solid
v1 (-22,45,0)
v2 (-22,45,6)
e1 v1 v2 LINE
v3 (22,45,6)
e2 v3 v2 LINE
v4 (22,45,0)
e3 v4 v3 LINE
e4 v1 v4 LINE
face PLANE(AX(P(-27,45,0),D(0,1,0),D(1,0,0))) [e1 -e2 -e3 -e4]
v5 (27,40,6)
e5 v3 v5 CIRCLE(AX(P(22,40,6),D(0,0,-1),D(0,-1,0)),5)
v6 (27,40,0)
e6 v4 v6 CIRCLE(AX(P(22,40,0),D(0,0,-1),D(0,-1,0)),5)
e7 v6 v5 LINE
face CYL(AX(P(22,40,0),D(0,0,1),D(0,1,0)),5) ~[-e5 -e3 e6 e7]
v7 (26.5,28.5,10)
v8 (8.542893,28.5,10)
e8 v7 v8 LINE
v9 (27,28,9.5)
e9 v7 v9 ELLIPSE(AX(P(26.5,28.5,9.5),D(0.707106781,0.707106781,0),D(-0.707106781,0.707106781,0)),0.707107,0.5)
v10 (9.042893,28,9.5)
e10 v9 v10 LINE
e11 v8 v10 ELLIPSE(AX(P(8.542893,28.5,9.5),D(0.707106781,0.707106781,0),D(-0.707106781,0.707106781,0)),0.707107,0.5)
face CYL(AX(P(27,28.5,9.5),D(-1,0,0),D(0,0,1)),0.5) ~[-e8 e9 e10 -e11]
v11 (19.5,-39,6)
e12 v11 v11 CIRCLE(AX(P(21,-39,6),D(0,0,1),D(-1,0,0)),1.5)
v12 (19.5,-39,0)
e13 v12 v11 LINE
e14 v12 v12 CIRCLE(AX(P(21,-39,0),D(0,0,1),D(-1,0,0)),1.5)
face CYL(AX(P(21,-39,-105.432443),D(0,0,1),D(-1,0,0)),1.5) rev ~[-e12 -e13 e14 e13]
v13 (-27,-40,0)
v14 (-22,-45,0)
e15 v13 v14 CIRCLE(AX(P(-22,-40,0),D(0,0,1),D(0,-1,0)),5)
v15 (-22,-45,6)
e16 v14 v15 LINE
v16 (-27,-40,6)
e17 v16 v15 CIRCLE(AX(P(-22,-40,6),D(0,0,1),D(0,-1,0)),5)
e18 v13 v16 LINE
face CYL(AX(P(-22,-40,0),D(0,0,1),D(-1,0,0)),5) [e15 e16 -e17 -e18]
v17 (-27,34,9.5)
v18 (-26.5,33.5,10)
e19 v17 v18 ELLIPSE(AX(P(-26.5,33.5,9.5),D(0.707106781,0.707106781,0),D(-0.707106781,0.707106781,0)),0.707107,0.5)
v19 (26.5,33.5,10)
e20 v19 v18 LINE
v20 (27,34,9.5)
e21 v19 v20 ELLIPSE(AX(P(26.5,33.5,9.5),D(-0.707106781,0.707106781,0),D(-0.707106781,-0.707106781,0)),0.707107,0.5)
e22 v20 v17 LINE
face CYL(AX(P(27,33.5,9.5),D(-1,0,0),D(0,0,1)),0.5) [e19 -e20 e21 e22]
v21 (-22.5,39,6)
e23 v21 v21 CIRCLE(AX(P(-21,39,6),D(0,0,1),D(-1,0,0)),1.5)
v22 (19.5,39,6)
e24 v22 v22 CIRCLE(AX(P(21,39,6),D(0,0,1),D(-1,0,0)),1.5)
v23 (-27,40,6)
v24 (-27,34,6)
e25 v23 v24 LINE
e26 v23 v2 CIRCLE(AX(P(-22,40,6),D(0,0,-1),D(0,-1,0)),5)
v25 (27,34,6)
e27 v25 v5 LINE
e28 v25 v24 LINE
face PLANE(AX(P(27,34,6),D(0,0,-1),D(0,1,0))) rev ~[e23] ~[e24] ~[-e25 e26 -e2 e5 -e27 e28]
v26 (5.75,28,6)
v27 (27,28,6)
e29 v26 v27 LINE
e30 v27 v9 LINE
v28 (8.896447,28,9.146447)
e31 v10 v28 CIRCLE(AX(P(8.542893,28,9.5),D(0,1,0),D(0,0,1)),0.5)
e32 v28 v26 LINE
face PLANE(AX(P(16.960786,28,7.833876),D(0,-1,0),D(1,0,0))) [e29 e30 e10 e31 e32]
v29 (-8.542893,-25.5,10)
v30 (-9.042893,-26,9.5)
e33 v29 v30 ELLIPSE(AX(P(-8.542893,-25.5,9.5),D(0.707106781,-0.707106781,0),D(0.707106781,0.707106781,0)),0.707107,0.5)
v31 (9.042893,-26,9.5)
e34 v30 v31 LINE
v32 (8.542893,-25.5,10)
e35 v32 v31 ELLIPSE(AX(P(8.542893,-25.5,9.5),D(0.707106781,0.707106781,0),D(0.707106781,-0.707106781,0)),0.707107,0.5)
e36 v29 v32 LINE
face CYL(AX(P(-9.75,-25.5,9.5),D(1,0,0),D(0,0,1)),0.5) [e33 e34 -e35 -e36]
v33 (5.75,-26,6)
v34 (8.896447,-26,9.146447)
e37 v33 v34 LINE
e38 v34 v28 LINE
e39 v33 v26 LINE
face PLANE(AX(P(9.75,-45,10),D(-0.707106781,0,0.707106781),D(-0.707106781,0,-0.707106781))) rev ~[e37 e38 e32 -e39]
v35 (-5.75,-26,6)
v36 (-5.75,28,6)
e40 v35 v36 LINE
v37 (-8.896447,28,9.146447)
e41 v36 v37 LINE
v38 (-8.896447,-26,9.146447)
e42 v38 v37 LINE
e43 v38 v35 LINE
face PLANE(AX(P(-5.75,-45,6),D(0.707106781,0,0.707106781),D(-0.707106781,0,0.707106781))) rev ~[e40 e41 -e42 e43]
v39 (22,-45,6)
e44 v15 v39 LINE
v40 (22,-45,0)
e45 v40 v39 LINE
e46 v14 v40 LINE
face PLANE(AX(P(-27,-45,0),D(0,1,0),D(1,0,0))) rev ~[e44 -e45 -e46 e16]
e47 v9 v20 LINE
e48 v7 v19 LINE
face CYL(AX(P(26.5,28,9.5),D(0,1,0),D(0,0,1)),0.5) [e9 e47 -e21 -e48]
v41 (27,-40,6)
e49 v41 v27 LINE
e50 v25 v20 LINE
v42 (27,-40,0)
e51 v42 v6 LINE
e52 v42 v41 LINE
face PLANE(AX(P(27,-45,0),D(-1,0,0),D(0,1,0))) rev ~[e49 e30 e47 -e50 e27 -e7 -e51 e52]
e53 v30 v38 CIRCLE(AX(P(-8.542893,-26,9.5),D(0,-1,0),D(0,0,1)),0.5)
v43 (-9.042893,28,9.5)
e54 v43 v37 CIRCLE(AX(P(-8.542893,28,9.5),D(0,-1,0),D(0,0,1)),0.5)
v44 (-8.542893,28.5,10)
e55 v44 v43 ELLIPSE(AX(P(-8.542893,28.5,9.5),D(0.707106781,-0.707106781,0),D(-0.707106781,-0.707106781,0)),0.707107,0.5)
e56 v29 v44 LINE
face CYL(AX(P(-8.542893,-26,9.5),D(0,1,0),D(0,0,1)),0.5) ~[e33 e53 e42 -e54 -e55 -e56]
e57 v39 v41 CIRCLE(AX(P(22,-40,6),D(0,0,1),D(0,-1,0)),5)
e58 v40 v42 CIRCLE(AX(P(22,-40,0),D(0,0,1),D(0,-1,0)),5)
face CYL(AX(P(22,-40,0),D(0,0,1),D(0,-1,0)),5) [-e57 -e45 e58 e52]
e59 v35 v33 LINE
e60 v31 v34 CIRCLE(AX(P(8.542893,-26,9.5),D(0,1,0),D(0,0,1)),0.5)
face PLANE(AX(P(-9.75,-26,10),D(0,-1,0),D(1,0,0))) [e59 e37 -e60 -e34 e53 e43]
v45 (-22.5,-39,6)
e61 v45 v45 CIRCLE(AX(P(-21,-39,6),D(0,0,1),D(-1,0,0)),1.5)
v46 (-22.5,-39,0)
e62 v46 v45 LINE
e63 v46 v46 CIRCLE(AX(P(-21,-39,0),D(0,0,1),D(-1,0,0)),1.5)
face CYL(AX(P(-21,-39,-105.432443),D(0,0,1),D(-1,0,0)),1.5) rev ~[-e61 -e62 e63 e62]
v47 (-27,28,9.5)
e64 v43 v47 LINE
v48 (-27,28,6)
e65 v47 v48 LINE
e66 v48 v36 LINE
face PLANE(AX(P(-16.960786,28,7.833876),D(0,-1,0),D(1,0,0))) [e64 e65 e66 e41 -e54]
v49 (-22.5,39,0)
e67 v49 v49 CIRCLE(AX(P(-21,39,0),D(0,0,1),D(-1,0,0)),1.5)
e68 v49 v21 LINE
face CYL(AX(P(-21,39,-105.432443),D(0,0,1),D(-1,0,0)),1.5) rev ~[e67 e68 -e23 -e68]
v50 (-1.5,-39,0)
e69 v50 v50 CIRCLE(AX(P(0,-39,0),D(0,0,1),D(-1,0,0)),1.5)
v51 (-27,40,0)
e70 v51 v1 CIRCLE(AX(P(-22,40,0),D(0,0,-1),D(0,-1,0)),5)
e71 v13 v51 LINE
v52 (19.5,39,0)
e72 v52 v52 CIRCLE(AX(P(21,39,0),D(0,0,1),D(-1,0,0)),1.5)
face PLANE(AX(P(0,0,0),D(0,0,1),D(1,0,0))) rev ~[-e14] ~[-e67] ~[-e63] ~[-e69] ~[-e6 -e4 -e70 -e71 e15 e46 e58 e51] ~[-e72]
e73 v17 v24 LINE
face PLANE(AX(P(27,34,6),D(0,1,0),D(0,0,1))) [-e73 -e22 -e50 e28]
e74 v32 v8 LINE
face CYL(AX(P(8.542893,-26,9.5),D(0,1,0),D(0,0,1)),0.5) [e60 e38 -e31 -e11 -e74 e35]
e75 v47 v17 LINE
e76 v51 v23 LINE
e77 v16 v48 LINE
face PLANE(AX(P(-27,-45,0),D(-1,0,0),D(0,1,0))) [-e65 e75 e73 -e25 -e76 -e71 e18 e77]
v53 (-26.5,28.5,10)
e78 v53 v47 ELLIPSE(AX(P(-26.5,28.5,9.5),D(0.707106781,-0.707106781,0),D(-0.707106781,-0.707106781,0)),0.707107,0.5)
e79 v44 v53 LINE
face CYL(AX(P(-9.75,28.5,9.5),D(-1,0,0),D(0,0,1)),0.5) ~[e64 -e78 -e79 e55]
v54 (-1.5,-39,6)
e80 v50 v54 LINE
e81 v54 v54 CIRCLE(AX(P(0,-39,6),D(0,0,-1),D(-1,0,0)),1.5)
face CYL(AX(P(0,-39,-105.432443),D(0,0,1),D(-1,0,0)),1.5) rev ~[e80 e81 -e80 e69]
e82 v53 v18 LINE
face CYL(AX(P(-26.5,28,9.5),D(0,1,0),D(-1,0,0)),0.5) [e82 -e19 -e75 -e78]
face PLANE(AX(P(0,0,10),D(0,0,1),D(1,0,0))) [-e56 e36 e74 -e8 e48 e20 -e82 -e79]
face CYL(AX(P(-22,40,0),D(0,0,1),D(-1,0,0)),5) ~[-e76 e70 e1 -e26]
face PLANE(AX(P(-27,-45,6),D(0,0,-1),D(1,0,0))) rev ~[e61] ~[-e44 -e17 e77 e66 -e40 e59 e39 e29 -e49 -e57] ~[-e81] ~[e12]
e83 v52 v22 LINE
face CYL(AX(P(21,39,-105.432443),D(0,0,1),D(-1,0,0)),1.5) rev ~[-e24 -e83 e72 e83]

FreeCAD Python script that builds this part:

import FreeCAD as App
import Part
import Sketcher
from FreeCAD import Vector


def edges_at(feature, points):
    """Names of the edges that pass closest to the given points."""
    edges = feature.Shape.Edges
    near = lambda p: min(range(len(edges)), key=lambda i: edges[i].distToShape(Part.Vertex(*p))[0])
    return sorted({f"Edge{near(p) + 1}" for p in points})


def add_polygon(sketch, points):
    """Adds a closed chain of lines whose ends are joined by coincident constraints."""
    first, n = sketch.GeometryCount, len(points)
    for a, b in zip(points, points[1:] + points[:1]):
        sketch.addGeometry(Part.LineSegment(App.Vector(*a, 0), App.Vector(*b, 0)), False)
    for i in range(n):
        sketch.addConstraint(Sketcher.Constraint("Coincident", first + i, 2, first + (i + 1) % n, 1))

doc = App.newDocument("Part")
body = doc.addObject("PartDesign::Body", "Body")

sketch1 = body.newObject("Sketcher::SketchObject", "Sketch")
sketch1.AttachmentSupport = (doc.getObject("XY_Plane"), [""])
sketch1.MapMode = "FlatFace"
add_polygon(sketch1, [(-27, 45), (-27, -45), (27, -45), (27, 45)])
sketch1.addConstraint([
    Sketcher.Constraint("Vertical", 0),
    Sketcher.Constraint("Horizontal", 1),
    Sketcher.Constraint("Vertical", 2),
    Sketcher.Constraint("Horizontal", 3),
    Sketcher.Constraint("Symmetric", 0, 2, 2, 2, -1, 1),
    Sketcher.Constraint("DistanceX", 1, 1, 1, 2, 54.0),
    Sketcher.Constraint("DistanceY", 0, 2, 0, 1, 90.0),
])
pad1 = body.newObject("PartDesign::Pad", "Pad")
pad1.Profile = sketch1
pad1.Length = 10

sketch2 = body.newObject("Sketcher::SketchObject", "Sketch001")
sketch2.AttachmentSupport = (doc.getObject("XZ_Plane"), [""])
sketch2.MapMode = "FlatFace"
sketch2.AttachmentOffset = App.Placement(Vector(0, 0, 45), App.Rotation())
add_polygon(sketch2, [(-27, 10), (-27, 6), (-5.8, 6), (-9.8, 10)])
add_polygon(sketch2, [(5.8, 6), (27, 6), (27, 10), (9.8, 10)])
sketch2.addConstraint([
    Sketcher.Constraint("Vertical", 0),
    Sketcher.Constraint("Horizontal", 1),
    Sketcher.Constraint("Horizontal", 3),
    Sketcher.Constraint("Horizontal", 4),
    Sketcher.Constraint("Vertical", 5),
    Sketcher.Constraint("Horizontal", 6),
    Sketcher.Constraint("Symmetric", 0, 2, 4, 2, -2),
    Sketcher.Constraint("Symmetric", 2, 2, 6, 2, -2),
    Sketcher.Constraint("Perpendicular", 2, 7),
    Sketcher.Constraint("Equal", 1, 4),
    Sketcher.Constraint("DistanceY", 0, 2, 0, 1, 4.0),
    Sketcher.Constraint("DistanceX", 0, 2, -1, 1, 27.0),
    Sketcher.Constraint("DistanceY", -1, 1, 0, 2, 6.0),
    Sketcher.Constraint("DistanceX", 1, 1, 1, 2, 21.25),
])
pocket1 = body.newObject("PartDesign::Pocket", "Pocket")
pocket1.Profile = sketch2
pocket1.Length = 73

sketch3 = body.newObject("Sketcher::SketchObject", "Sketch002")
sketch3.AttachmentSupport = (doc.getObject("XY_Plane"), [""])
sketch3.MapMode = "FlatFace"
sketch3.addGeometry([
    Part.Circle(Vector(-21, -39, 0), Vector(0, 0, 1), 1.5),
    Part.Circle(Vector(21, -39, 0), Vector(0, 0, 1), 1.5),
    Part.Circle(Vector(21, 39, 0), Vector(0, 0, 1), 1.5),
    Part.Circle(Vector(-21, 39, 0), Vector(0, 0, 1), 1.5),
    Part.Circle(Vector(0, -39, 0), Vector(0, 0, 1), 1.5),
], False)
sketch3.addConstraint([
    Sketcher.Constraint("Equal", 0, 1),
    Sketcher.Constraint("Equal", 1, 2),
    Sketcher.Constraint("Equal", 2, 3),
    Sketcher.Constraint("Equal", 3, 4),
    Sketcher.Constraint("Symmetric", 0, 3, 2, 3, -1, 1),
    Sketcher.Constraint("Symmetric", 1, 3, 3, 3, -1, 1),
    Sketcher.Constraint("Symmetric", 0, 3, 1, 3, -2),
    Sketcher.Constraint("PointOnObject", 4, 3, -2),
    Sketcher.Constraint("Horizontal", 1, 3, 4, 3),
    Sketcher.Constraint("Diameter", 0, 3.0),
    Sketcher.Constraint("DistanceX", 0, 3, -1, 1, 21.0),
    Sketcher.Constraint("DistanceY", 0, 3, -1, 1, 39.0),
])
doc.recompute()
hole = body.newObject("PartDesign::Hole", "Hole")
hole.Profile = sketch3
hole.ThreadType = "None"
hole.Diameter = 3
hole.DepthType = "ThroughAll"
hole.Reversed = True

sketch4 = body.newObject("Sketcher::SketchObject", "Sketch003")
sketch4.AttachmentSupport = (doc.getObject("YZ_Plane"), [""])
sketch4.MapMode = "FlatFace"
sketch4.AttachmentOffset = App.Placement(Vector(0, 0, 27), App.Rotation())
add_polygon(sketch4, [(34, 10), (34, 6), (45, 6), (45, 10)])
sketch4.addConstraint([
    Sketcher.Constraint("Vertical", 0),
    Sketcher.Constraint("Horizontal", 1),
    Sketcher.Constraint("Vertical", 2),
    Sketcher.Constraint("Horizontal", 3),
    Sketcher.Constraint("DistanceX", 1, 1, 1, 2, 11.0),
    Sketcher.Constraint("DistanceY", 0, 2, 0, 1, 4.0),
    Sketcher.Constraint("DistanceX", -1, 1, 0, 2, 34.0),
    Sketcher.Constraint("DistanceY", -1, 1, 0, 2, 6.0),
])
pocket2 = body.newObject("PartDesign::Pocket", "Pocket001")
pocket2.Profile = sketch4
pocket2.Type = "ThroughAll"
doc.recompute()

fillet = body.newObject("PartDesign::Fillet", "Fillet")
fillet.Base = (pocket2, edges_at(pocket2, [
    (27, -45, 3),
    (27, 45, 3),
    (-27, 45, 3),
    (-27, -45, 3),
]))
fillet.Radius = 5

sketch5 = body.newObject("Sketcher::SketchObject", "Sketch004")
sketch5.AttachmentSupport = (doc.getObject("XY_Plane"), [""])
sketch5.MapMode = "FlatFace"
sketch5.AttachmentOffset = App.Placement(Vector(0, 0, 10), App.Rotation())
add_polygon(sketch5, [(-9.8, -26), (-9.8, -45), (9.8, -45), (9.8, -26)])
sketch5.addGeometry(Part.Circle(Vector(0, -39, 0), Vector(0, 0, 1), 1.5), False)
sketch5.addConstraint([
    Sketcher.Constraint("Vertical", 0),
    Sketcher.Constraint("Horizontal", 1),
    Sketcher.Constraint("Vertical", 2),
    Sketcher.Constraint("Horizontal", 3),
    Sketcher.Constraint("PointOnObject", 4, 3, -2),
    Sketcher.Constraint("Diameter", 4, 3.0),
    Sketcher.Constraint("DistanceY", 0, 2, 0, 1, 19.0),
    Sketcher.Constraint("DistanceX", 1, 1, 1, 2, 19.5),
    Sketcher.Constraint("DistanceY", 4, 3, -1, 1, 39.0),
    Sketcher.Constraint("DistanceY", 0, 2, -1, 1, 45.0),
    Sketcher.Constraint("DistanceX", 0, 2, -1, 1, 9.75),
])
pocket3 = body.newObject("PartDesign::Pocket", "Pocket002")
pocket3.Profile = sketch5
pocket3.Length = 4
doc.recompute()

fillet2 = body.newObject("PartDesign::Fillet", "Fillet001")
fillet2.Base = (pocket3, edges_at(pocket3, [
    (-9.75, 1, 10),
    (9.75, 1, 10),
    (-18.375, 28, 10),
    (18.375, 28, 10),
    (0, -26, 10),
    (-27, 31, 10),
    (0, 34, 10),
    (27, 31, 10),
]))
fillet2.Radius = 0.5

doc.recompute()
